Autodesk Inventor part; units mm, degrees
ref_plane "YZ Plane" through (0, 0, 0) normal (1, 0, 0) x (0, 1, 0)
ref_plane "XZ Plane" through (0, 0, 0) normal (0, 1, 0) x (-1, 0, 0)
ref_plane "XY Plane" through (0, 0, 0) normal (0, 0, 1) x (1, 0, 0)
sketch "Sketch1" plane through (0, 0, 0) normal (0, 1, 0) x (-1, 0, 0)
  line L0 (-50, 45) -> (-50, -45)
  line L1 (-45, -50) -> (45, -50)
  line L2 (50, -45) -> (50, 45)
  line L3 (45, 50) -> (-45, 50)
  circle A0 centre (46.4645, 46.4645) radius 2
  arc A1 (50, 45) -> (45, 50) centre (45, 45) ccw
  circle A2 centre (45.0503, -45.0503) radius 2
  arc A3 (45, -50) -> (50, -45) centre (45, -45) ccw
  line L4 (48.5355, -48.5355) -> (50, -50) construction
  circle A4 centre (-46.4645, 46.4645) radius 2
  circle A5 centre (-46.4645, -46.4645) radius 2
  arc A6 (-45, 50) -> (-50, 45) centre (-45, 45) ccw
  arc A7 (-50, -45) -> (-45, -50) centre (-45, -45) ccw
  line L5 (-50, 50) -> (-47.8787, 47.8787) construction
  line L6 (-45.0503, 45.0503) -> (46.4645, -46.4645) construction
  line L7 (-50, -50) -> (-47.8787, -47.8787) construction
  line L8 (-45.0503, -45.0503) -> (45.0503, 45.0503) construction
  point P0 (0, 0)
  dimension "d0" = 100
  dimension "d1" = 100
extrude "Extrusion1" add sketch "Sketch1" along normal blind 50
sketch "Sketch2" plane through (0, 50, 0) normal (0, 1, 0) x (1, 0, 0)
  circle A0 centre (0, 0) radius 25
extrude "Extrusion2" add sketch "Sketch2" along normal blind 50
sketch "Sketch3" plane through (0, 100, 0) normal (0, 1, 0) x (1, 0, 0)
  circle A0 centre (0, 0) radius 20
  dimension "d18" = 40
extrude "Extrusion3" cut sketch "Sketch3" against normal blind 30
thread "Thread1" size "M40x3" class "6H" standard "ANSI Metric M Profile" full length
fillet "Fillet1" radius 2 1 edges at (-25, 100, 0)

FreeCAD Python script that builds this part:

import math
import FreeCAD as App
import Part
import Sketcher
from FreeCAD import Vector
Q = App.Units.Quantity


def edges_at(feature, points):
    """Names of the edges that pass closest to the given points."""
    edges = feature.Shape.Edges
    near = lambda p: min(range(len(edges)), key=lambda i: edges[i].distToShape(Part.Vertex(*p))[0])
    return sorted({f"Edge{near(p) + 1}" for p in points})

doc = App.newDocument("Part")
body = doc.addObject("PartDesign::Body", "Body")

sketch1 = body.newObject("Sketcher::SketchObject", "Sketch")
sketch1.AttachmentSupport = (doc.getObject("XZ_Plane"), [""])
sketch1.MapMode = "FlatFace"
sketch1.addGeometry([
    Part.ArcOfCircle(Part.Circle(Vector(45, 45, 0), Vector(0, 0, 1), 5), math.radians(0), math.radians(90)),
    Part.LineSegment(Vector(50, 45, 0), Vector(50, -45, 0)),
    Part.ArcOfCircle(Part.Circle(Vector(45, -45, 0), Vector(0, 0, 1), 5), math.radians(-90), math.radians(0)),
    Part.LineSegment(Vector(45, -50, 0), Vector(-45, -50, 0)),
    Part.ArcOfCircle(Part.Circle(Vector(-45, -45, 0), Vector(0, 0, 1), 5), math.radians(180), math.radians(270)),
    Part.LineSegment(Vector(-50, -45, 0), Vector(-50, 45, 0)),
    Part.ArcOfCircle(Part.Circle(Vector(-45, 45, 0), Vector(0, 0, 1), 5), math.radians(90), math.radians(180)),
    Part.LineSegment(Vector(-45, 50, 0), Vector(45, 50, 0)),
    Part.Circle(Vector(46.5, -46.5, 0), Vector(0, 0, 1), 2),
    Part.Circle(Vector(-45.1, -45.1, 0), Vector(0, 0, 1), 2),
    Part.Circle(Vector(46.5, 46.5, 0), Vector(0, 0, 1), 2),
    Part.Circle(Vector(-46.5, 46.5, 0), Vector(0, 0, 1), 2),
], False)
sketch1.addConstraint([
    Sketcher.Constraint("Tangent", 0, 1, 1, 1),
    Sketcher.Constraint("Tangent", 1, 2, 2, 2),
    Sketcher.Constraint("Tangent", 2, 1, 3, 1),
    Sketcher.Constraint("Tangent", 3, 2, 4, 2),
    Sketcher.Constraint("Tangent", 4, 1, 5, 1),
    Sketcher.Constraint("Tangent", 5, 2, 6, 2),
    Sketcher.Constraint("Tangent", 6, 1, 7, 1),
    Sketcher.Constraint("Tangent", 7, 2, 0, 2),
    Sketcher.Constraint("Vertical", 1),
    Sketcher.Constraint("Horizontal", 3),
    Sketcher.Constraint("Vertical", 5),
    Sketcher.Constraint("Horizontal", 7),
    Sketcher.Constraint("Equal", 0, 2),
    Sketcher.Constraint("Equal", 2, 4),
    Sketcher.Constraint("Equal", 4, 6),
    Sketcher.Constraint("Equal", 8, 9),
    Sketcher.Constraint("Equal", 9, 10),
    Sketcher.Constraint("Equal", 10, 11),
    Sketcher.Constraint("Symmetric", 0, 3, 4, 3, -1, 1),
    Sketcher.Constraint("Symmetric", 8, 3, 11, 3, -1, 1),
    Sketcher.Constraint("Symmetric", 10, 3, 11, 3, -2),
    Sketcher.Constraint("Equal", 7, 1),
    Sketcher.Constraint("Diameter", 8, Q("4 mm")),
    Sketcher.Constraint("Radius", 0, Q("5 mm")),
    Sketcher.Constraint("DistanceX", 3, 2, 3, 1, Q("90 mm")),
    Sketcher.Constraint("DistanceY", 8, 3, 10, 3, Q("92.929 mm")),
    Sketcher.Constraint("DistanceX", 11, 3, 10, 3, Q("92.929 mm")),
    Sketcher.Constraint("DistanceX", 9, 3, -1, 1, Q("45.0503 mm")),
    Sketcher.Constraint("DistanceY", 9, 3, -1, 1, Q("45.0503 mm")),
])
pad1 = body.newObject("PartDesign::Pad", "Pad")
pad1.Profile = sketch1
pad1.Length = 50
pad1.Reversed = True

sketch2 = body.newObject("Sketcher::SketchObject", "Sketch001")
sketch2.AttachmentSupport = (doc.getObject("XZ_Plane"), [""])
sketch2.MapMode = "FlatFace"
sketch2.AttachmentOffset = App.Placement(Vector(0, 0, -50), App.Rotation())
sketch2.addGeometry(Part.Circle(Vector(0, 0, 0), Vector(0, 0, 1), 25), False)
sketch2.addConstraint([
    Sketcher.Constraint("Coincident", 0, 3, -1, 1),
    Sketcher.Constraint("Diameter", 0, Q("50 mm")),
])
pad2 = body.newObject("PartDesign::Pad", "Pad001")
pad2.Profile = sketch2
pad2.Length = 50
pad2.Reversed = True

sketch3 = body.newObject("Sketcher::SketchObject", "Sketch002")
sketch3.AttachmentSupport = (doc.getObject("XZ_Plane"), [""])
sketch3.MapMode = "FlatFace"
sketch3.AttachmentOffset = App.Placement(Vector(0, 0, -100), App.Rotation())
sketch3.addGeometry(Part.Circle(Vector(0, 0, 0), Vector(0, 0, 1), 20), False)
sketch3.addConstraint([
    Sketcher.Constraint("Coincident", 0, 3, -1, 1),
    Sketcher.Constraint("Diameter", 0, Q("40 mm")),
])
pocket1 = body.newObject("PartDesign::Pocket", "Pocket")
pocket1.Profile = sketch3
pocket1.Length = 30
pocket1.Reversed = True
doc.recompute()

fillet = body.newObject("PartDesign::Fillet", "Fillet")
fillet.Base = (pocket1, edges_at(pocket1, [(-25, 100, 0)]))
fillet.Radius = 2

doc.recompute()
